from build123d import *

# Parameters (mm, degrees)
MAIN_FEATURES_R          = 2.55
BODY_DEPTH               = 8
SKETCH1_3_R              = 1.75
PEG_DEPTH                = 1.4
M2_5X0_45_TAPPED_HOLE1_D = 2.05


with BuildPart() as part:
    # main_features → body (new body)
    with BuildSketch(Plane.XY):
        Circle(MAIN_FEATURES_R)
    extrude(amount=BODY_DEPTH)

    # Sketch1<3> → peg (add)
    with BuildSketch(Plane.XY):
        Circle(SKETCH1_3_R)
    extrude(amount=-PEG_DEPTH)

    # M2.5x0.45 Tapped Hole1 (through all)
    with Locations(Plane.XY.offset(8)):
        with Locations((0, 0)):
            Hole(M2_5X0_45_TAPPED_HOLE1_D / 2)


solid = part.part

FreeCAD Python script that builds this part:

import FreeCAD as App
import Part
import Sketcher

V = App.Vector

doc = App.newDocument("Part")
body = doc.addObject("PartDesign::Body", "Body")

sketch1 = body.newObject("Sketcher::SketchObject", "Sketch")
sketch1.AttachmentSupport = (doc.getObject("XY_Plane"), [""])
sketch1.MapMode = "FlatFace"
sketch1.addGeometry(Part.Circle(V(0, 0, 0), V(0, 0, 1), 2.5), False)
sketch1.addConstraint(Sketcher.Constraint("Coincident", 0, 3, -1, 1))
sketch1.addConstraint(Sketcher.Constraint("Diameter", 0, 5.1))
pad1 = body.newObject("PartDesign::Pad", "Pad")
pad1.Profile = sketch1
pad1.Length = 8

sketch2 = body.newObject("Sketcher::SketchObject", "Sketch001")
sketch2.AttachmentSupport = (doc.getObject("XY_Plane"), [""])
sketch2.MapMode = "FlatFace"
sketch2.addGeometry(Part.Circle(V(0, 0, 0), V(0, 0, 1), 1.8), False)
sketch2.addConstraint(Sketcher.Constraint("Coincident", 0, 3, -1, 1))
sketch2.addConstraint(Sketcher.Constraint("Diameter", 0, 3.5))
pad2 = body.newObject("PartDesign::Pad", "Pad001")
pad2.Profile = sketch2
pad2.Length = 1.4
pad2.Reversed = True

sketch3 = body.newObject("Sketcher::SketchObject", "Sketch002")
sketch3.AttachmentSupport = (doc.getObject("XY_Plane"), [""])
sketch3.MapMode = "FlatFace"
sketch3.AttachmentOffset = App.Placement(V(0, 0, 8), App.Rotation())
sketch3.addGeometry(Part.Circle(V(0, 0, 0), V(0, 0, 1), 1), False)
sketch3.addConstraint(Sketcher.Constraint("Coincident", 0, 3, -1, 1))
sketch3.addConstraint(Sketcher.Constraint("Diameter", 0, 2.05))
doc.recompute()
hole = body.newObject("PartDesign::Hole", "Hole")
hole.Profile = sketch3
hole.ThreadType = "None"
hole.Diameter = 2.05
hole.DepthType = "ThroughAll"

doc.recompute()
